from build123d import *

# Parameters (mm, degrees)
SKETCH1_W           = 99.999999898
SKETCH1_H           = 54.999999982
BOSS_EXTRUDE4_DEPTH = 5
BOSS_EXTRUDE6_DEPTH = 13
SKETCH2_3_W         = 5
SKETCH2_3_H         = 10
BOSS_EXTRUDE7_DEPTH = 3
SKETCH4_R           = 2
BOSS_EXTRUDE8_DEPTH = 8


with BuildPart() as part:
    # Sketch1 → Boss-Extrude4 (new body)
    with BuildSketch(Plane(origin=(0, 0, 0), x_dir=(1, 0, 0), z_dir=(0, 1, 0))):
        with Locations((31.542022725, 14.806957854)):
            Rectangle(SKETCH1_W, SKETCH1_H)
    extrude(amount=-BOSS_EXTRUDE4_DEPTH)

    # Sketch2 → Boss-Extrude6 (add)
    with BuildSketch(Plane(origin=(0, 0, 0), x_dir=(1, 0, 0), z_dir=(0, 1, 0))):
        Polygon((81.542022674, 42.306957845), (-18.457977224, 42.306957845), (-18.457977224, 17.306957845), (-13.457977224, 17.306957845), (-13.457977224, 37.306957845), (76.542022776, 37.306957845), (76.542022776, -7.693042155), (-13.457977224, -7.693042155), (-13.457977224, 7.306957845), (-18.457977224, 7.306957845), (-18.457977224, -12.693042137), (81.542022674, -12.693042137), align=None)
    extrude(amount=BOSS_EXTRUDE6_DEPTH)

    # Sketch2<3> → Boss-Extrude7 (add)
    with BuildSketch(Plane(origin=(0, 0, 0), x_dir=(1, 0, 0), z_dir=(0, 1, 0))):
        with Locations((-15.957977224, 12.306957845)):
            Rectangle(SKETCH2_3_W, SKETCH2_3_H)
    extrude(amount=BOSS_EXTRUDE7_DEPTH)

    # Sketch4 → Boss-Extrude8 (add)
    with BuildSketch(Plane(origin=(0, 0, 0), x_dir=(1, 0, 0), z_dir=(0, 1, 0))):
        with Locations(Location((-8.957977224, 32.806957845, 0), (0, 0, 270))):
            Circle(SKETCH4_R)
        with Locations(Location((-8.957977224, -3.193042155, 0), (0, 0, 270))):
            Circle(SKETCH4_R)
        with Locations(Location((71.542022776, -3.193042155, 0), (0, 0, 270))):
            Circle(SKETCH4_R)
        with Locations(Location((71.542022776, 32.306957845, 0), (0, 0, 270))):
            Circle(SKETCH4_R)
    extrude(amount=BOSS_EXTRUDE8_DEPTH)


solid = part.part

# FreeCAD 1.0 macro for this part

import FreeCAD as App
import Part
import Sketcher
Q = App.Units.Quantity


def add_polygon(sketch, points):
    """Adds a closed chain of lines whose ends are joined by coincident constraints."""
    first, n = sketch.GeometryCount, len(points)
    for a, b in zip(points, points[1:] + points[:1]):
        sketch.addGeometry(Part.LineSegment(App.Vector(*a, 0), App.Vector(*b, 0)), False)
    for i in range(n):
        sketch.addConstraint(Sketcher.Constraint("Coincident", first + i, 2, first + (i + 1) % n, 1))

doc = App.newDocument("Part")
params = doc.addObject("Spreadsheet::Sheet", "Params")
for row, (alias, value) in enumerate([
    ("sketch1_width", "100 mm"),
    ("sketch1_height", "55 mm"),
    ("pad1_length", "5 mm"),
    ("sketch2_width", "100 mm"),
    ("sketch2_width2", "5 mm"),
    ("sketch2_width3", "90 mm"),
    ("sketch2_height", "25 mm"),
    ("sketch2_height2", "20 mm"),
    ("pad2_length", "13 mm"),
    ("sketch3_width", "5 mm"),
    ("sketch3_height", "10 mm"),
    ("pad3_length", "3 mm"),
    ("sketch4_diameter", "4 mm"),
    ("pad4_length", "8 mm"),
], start=1):
    params.set(f"A{row}", alias)
    params.set(f"B{row}", "=" + value)
    params.setAlias(f"B{row}", alias)

body = doc.addObject("PartDesign::Body", "Body")

sketch1 = body.newObject("Sketcher::SketchObject", "Sketch")
sketch1.AttachmentSupport = (doc.getObject("XZ_Plane"), [""])
sketch1.MapMode = "FlatFace"
add_polygon(sketch1, [(-18, -42), (-18, 13), (82, 13), (82, -42)])
sketch1.addConstraint([
    Sketcher.Constraint("Vertical", 0),
    Sketcher.Constraint("Horizontal", 1),
    Sketcher.Constraint("Vertical", 2),
    Sketcher.Constraint("Horizontal", 3),
    Sketcher.Constraint("DistanceX", 1, 1, 1, 2, Q("100 mm")),
    Sketcher.Constraint("DistanceY", 0, 1, 0, 2, Q("55 mm")),
    Sketcher.Constraint("DistanceX", 0, 2, -1, 1, Q("18.457977 mm")),
    Sketcher.Constraint("DistanceY", -1, 1, 0, 2, Q("12.693042 mm")),
])
sketch1.setExpression("Constraints[8]", "Params.sketch1_width")
sketch1.setExpression("Constraints[9]", "Params.sketch1_height")
pad1 = body.newObject("PartDesign::Pad", "Pad")
pad1.Profile = sketch1
pad1.setExpression("Length", "Params.pad1_length")

sketch2 = body.newObject("Sketcher::SketchObject", "Sketch001")
sketch2.AttachmentSupport = (doc.getObject("XZ_Plane"), [""])
sketch2.MapMode = "FlatFace"
add_polygon(sketch2, [(82, -42), (-18, -42), (-18, -17), (-13, -17), (-13, -37), (77, -37), (77, 8), (-13, 8), (-13, -7), (-18, -7), (-18, 13), (82, 13)])
sketch2.addConstraint([
    Sketcher.Constraint("Horizontal", 0),
    Sketcher.Constraint("Vertical", 1),
    Sketcher.Constraint("Horizontal", 2),
    Sketcher.Constraint("Vertical", 3),
    Sketcher.Constraint("Horizontal", 4),
    Sketcher.Constraint("Vertical", 5),
    Sketcher.Constraint("Horizontal", 6),
    Sketcher.Constraint("Vertical", 7),
    Sketcher.Constraint("Horizontal", 8),
    Sketcher.Constraint("Vertical", 9),
    Sketcher.Constraint("Horizontal", 10),
    Sketcher.Constraint("Vertical", 11),
    Sketcher.Constraint("Vertical", 3, 2, 6, 2),
    Sketcher.Constraint("Vertical", 1, 2, 8, 2),
    Sketcher.Constraint("Equal", 3, 9),
    Sketcher.Constraint("DistanceX", 0, 2, 0, 1, Q("100 mm")),
    Sketcher.Constraint("DistanceX", 2, 1, 2, 2, Q("5 mm")),
    Sketcher.Constraint("DistanceX", 4, 1, 4, 2, Q("90 mm")),
    Sketcher.Constraint("DistanceY", 1, 1, 1, 2, Q("25 mm")),
    Sketcher.Constraint("DistanceY", 3, 2, 3, 1, Q("20 mm")),
    Sketcher.Constraint("DistanceY", 5, 1, 5, 2, Q("45 mm")),
    Sketcher.Constraint("DistanceY", 7, 2, 7, 1, Q("15 mm")),
    Sketcher.Constraint("DistanceX", 0, 2, -1, 1, Q("18.457977 mm")),
    Sketcher.Constraint("DistanceY", 0, 2, -1, 1, Q("42.306958 mm")),
])
sketch2.setExpression("Constraints[27]", "Params.sketch2_width")
sketch2.setExpression("Constraints[28]", "Params.sketch2_width2")
sketch2.setExpression("Constraints[29]", "Params.sketch2_width3")
sketch2.setExpression("Constraints[30]", "Params.sketch2_height")
sketch2.setExpression("Constraints[31]", "Params.sketch2_height2")
pad2 = body.newObject("PartDesign::Pad", "Pad001")
pad2.Profile = sketch2
pad2.setExpression("Length", "Params.pad2_length")
pad2.Reversed = True

sketch3 = body.newObject("Sketcher::SketchObject", "Sketch002")
sketch3.AttachmentSupport = (doc.getObject("XZ_Plane"), [""])
sketch3.MapMode = "FlatFace"
add_polygon(sketch3, [(-18, -17), (-18, -7), (-13, -7), (-13, -17)])
sketch3.addConstraint([
    Sketcher.Constraint("Vertical", 0),
    Sketcher.Constraint("Horizontal", 1),
    Sketcher.Constraint("Vertical", 2),
    Sketcher.Constraint("Horizontal", 3),
    Sketcher.Constraint("DistanceX", 1, 1, 1, 2, Q("5 mm")),
    Sketcher.Constraint("DistanceY", 0, 1, 0, 2, Q("10 mm")),
    Sketcher.Constraint("DistanceX", 0, 2, -1, 1, Q("18.457977 mm")),
    Sketcher.Constraint("DistanceY", 0, 2, -1, 1, Q("7.306958 mm")),
])
sketch3.setExpression("Constraints[8]", "Params.sketch3_width")
sketch3.setExpression("Constraints[9]", "Params.sketch3_height")
pad3 = body.newObject("PartDesign::Pad", "Pad002")
pad3.Profile = sketch3
pad3.setExpression("Length", "Params.pad3_length")
pad3.Reversed = True

sketch4 = body.newObject("Sketcher::SketchObject", "Sketch003")
sketch4.AttachmentSupport = (doc.getObject("XZ_Plane"), [""])
sketch4.MapMode = "FlatFace"
sketch4.addGeometry([
    Part.Circle(App.Vector(-9, -32.8, 0), App.Vector(0, 0, 1), 2),
    Part.Circle(App.Vector(-9, 3.2, 0), App.Vector(0, 0, 1), 2),
    Part.Circle(App.Vector(71.5, 3.2, 0), App.Vector(0, 0, 1), 2),
    Part.Circle(App.Vector(71.5, -32.3, 0), App.Vector(0, 0, 1), 2),
], False)
sketch4.addConstraint([
    Sketcher.Constraint("Equal", 0, 1),
    Sketcher.Constraint("Equal", 1, 2),
    Sketcher.Constraint("Equal", 2, 3),
    Sketcher.Constraint("Horizontal", 1, 3, 2, 3),
    Sketcher.Constraint("Vertical", 0, 3, 1, 3),
    Sketcher.Constraint("Vertical", 2, 3, 3, 3),
    Sketcher.Constraint("Diameter", 0, Q("4 mm")),
    Sketcher.Constraint("DistanceY", 0, 3, 1, 3, Q("36 mm")),
    Sketcher.Constraint("DistanceX", 1, 3, 2, 3, Q("80.5 mm")),
    Sketcher.Constraint("DistanceY", 3, 3, 2, 3, Q("35.5 mm")),
    Sketcher.Constraint("DistanceX", 0, 3, -1, 1, Q("8.957977 mm")),
    Sketcher.Constraint("DistanceY", 0, 3, -1, 1, Q("32.806958 mm")),
])
sketch4.setExpression("Constraints[6]", "Params.sketch4_diameter")
pad4 = body.newObject("PartDesign::Pad", "Pad003")
pad4.Profile = sketch4
pad4.setExpression("Length", "Params.pad4_length")
pad4.Reversed = True

doc.recompute()
